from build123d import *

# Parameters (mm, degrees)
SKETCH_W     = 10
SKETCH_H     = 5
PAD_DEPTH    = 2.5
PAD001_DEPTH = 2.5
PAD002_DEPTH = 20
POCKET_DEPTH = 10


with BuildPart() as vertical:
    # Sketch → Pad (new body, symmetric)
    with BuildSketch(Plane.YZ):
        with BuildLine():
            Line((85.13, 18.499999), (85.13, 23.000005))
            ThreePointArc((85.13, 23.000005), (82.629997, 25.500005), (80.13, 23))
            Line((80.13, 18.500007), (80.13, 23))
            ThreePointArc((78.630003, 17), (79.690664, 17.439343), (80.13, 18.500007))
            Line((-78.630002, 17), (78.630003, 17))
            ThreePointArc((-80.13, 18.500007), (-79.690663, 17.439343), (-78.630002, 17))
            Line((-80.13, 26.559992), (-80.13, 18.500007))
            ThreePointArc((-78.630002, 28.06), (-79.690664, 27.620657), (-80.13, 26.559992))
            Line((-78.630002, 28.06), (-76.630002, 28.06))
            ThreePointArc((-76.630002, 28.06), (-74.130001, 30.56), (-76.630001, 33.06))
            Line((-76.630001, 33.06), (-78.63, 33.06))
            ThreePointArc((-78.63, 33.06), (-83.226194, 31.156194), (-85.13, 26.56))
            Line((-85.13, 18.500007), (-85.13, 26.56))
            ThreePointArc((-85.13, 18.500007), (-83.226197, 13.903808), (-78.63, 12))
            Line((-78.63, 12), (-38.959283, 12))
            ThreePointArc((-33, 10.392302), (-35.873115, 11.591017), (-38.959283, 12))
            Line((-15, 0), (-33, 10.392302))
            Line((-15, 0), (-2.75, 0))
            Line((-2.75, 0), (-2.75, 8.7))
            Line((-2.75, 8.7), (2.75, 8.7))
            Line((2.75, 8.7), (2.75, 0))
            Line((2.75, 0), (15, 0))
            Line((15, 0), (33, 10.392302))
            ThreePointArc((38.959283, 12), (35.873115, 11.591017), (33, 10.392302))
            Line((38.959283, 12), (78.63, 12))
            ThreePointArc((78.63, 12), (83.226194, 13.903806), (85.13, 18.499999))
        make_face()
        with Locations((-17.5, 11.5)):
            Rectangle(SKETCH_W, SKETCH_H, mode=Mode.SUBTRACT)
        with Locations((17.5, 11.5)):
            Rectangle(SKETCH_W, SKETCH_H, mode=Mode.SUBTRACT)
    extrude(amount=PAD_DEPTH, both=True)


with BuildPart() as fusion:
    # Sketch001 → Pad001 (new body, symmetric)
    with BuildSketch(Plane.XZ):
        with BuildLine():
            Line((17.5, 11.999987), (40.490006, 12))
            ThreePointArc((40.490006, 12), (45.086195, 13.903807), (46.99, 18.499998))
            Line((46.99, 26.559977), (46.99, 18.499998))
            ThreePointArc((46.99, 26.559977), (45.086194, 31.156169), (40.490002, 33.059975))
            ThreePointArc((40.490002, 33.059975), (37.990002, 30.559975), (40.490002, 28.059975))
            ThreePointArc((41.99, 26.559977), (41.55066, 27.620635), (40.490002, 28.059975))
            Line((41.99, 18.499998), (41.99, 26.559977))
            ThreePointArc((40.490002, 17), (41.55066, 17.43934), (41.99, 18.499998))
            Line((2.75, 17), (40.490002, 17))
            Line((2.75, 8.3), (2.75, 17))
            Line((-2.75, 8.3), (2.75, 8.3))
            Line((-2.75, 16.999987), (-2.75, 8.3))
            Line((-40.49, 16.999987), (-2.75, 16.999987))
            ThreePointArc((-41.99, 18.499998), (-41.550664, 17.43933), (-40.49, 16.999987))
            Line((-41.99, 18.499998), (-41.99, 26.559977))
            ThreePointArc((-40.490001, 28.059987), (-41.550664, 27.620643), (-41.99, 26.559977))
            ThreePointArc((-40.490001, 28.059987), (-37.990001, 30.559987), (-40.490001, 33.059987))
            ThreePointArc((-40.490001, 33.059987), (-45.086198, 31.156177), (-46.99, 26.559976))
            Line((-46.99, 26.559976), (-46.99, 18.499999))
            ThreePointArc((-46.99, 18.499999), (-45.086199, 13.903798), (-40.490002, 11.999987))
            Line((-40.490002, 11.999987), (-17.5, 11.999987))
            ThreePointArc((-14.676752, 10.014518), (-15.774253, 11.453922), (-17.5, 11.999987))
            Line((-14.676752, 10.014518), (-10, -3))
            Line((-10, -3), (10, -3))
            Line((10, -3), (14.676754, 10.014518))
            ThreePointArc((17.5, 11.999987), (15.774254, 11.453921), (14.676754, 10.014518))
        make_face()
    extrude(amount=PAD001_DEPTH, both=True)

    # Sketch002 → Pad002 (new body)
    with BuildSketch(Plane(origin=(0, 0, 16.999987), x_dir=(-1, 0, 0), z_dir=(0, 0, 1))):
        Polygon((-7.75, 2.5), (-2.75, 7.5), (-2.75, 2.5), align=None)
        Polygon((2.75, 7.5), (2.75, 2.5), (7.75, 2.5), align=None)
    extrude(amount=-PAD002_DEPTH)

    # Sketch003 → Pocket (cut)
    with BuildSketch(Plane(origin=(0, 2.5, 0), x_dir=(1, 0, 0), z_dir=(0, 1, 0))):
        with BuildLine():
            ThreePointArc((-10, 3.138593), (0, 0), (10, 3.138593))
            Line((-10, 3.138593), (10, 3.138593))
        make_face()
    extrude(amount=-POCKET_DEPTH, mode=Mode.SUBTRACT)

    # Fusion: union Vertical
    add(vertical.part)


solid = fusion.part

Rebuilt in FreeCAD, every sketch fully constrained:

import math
import FreeCAD as App
import Part
import Sketcher
from FreeCAD import Vector
Q = App.Units.Quantity


def add_polygon(sketch, points):
    """Adds a closed chain of lines whose ends are joined by coincident constraints."""
    first, n = sketch.GeometryCount, len(points)
    for a, b in zip(points, points[1:] + points[:1]):
        sketch.addGeometry(Part.LineSegment(App.Vector(*a, 0), App.Vector(*b, 0)), False)
    for i in range(n):
        sketch.addConstraint(Sketcher.Constraint("Coincident", first + i, 2, first + (i + 1) % n, 1))

doc = App.newDocument("Part")
body = doc.addObject("PartDesign::Body", "Body")

sketch1 = body.newObject("Sketcher::SketchObject", "Sketch")
sketch1.AttachmentSupport = (doc.getObject("YZ_Plane"), [""])
sketch1.MapMode = "FlatFace"
sketch1.addGeometry(Part.LineSegment(Vector(85.1, 18.5, 0), Vector(85.1, 23, 0)), False)
sketch1.addGeometry(Part.ArcOfCircle(Part.Circle(Vector(82.6, 23, 0), Vector(0, 0, 1), 2.5), math.radians(0), math.radians(180)), False)
sketch1.addGeometry(Part.LineSegment(Vector(80.1, 23, 0), Vector(80.1, 18.5, 0)), False)
sketch1.addGeometry(Part.ArcOfCircle(Part.Circle(Vector(78.6, 18.5, 0), Vector(0, 0, 1), 1.5), math.radians(-90), math.radians(0)), False)
sketch1.addGeometry(Part.LineSegment(Vector(78.6, 17, 0), Vector(-78.6, 17, 0)), False)
sketch1.addGeometry(Part.ArcOfCircle(Part.Circle(Vector(-78.6, 18.5, 0), Vector(0, 0, 1), 1.5), math.radians(180), math.radians(270)), False)
sketch1.addGeometry(Part.LineSegment(Vector(-80.1, 18.5, 0), Vector(-80.1, 26.6, 0)), False)
sketch1.addGeometry(Part.ArcOfCircle(Part.Circle(Vector(-78.6, 26.6, 0), Vector(0, 0, 1), 1.5), math.radians(90), math.radians(180)), False)
sketch1.addGeometry(Part.LineSegment(Vector(-78.6, 28.1, 0), Vector(-76.6, 28.1, 0)), False)
sketch1.addGeometry(Part.ArcOfCircle(Part.Circle(Vector(-76.6, 30.6, 0), Vector(0, 0, 1), 2.5), math.radians(-90), math.radians(90)), False)
sketch1.addGeometry(Part.LineSegment(Vector(-76.6, 33.1, 0), Vector(-78.6, 33.1, 0)), False)
sketch1.addGeometry(Part.ArcOfCircle(Part.Circle(Vector(-78.6, 26.6, 0), Vector(0, 0, 1), 6.5), math.radians(90), math.radians(180)), False)
sketch1.addGeometry(Part.LineSegment(Vector(-85.1, 26.6, 0), Vector(-85.1, 18.5, 0)), False)
sketch1.addGeometry(Part.ArcOfCircle(Part.Circle(Vector(-78.6, 18.5, 0), Vector(0, 0, 1), 6.5), math.radians(180), math.radians(270)), False)
sketch1.addGeometry(Part.LineSegment(Vector(-78.6, 12, 0), Vector(-39, 12, 0)), False)
sketch1.addGeometry(Part.ArcOfCircle(Part.Circle(Vector(-39, 0.2, 0), Vector(0, 0, 1), 11.8), math.radians(60), math.radians(90)), False)
sketch1.addGeometry(Part.LineSegment(Vector(-33, 10.4, 0), Vector(-15, 0, 0)), False)
sketch1.addGeometry(Part.LineSegment(Vector(-15, 0, 0), Vector(-2.8, 0, 0)), False)
sketch1.addGeometry(Part.LineSegment(Vector(-2.8, 0, 0), Vector(-2.8, 8.7, 0)), False)
sketch1.addGeometry(Part.LineSegment(Vector(-2.8, 8.7, 0), Vector(2.8, 8.7, 0)), False)
sketch1.addGeometry(Part.LineSegment(Vector(2.8, 8.7, 0), Vector(2.8, 0, 0)), False)
sketch1.addGeometry(Part.LineSegment(Vector(2.8, 0, 0), Vector(15, 0, 0)), False)
sketch1.addGeometry(Part.LineSegment(Vector(15, 0, 0), Vector(33, 10.4, 0)), False)
sketch1.addGeometry(Part.ArcOfCircle(Part.Circle(Vector(39, 0.2, 0), Vector(0, 0, 1), 11.8), math.radians(90), math.radians(120)), False)
sketch1.addGeometry(Part.LineSegment(Vector(39, 12, 0), Vector(78.6, 12, 0)), False)
sketch1.addGeometry(Part.ArcOfCircle(Part.Circle(Vector(78.6, 18.5, 0), Vector(0, 0, 1), 6.5), math.radians(-90), math.radians(0)), False)
add_polygon(sketch1, [(-12.5, 9), (-22.5, 9), (-22.5, 14), (-12.5, 14)])
add_polygon(sketch1, [(22.5, 9), (12.5, 9), (12.5, 14), (22.5, 14)])
sketch1.addConstraint([
    Sketcher.Constraint("Tangent", 0, 2, 1, 1),
    Sketcher.Constraint("Coincident", 1, 2, 2, 1),
    Sketcher.Constraint("Coincident", 2, 2, 3, 2),
    Sketcher.Constraint("Tangent", 3, 1, 4, 1),
    Sketcher.Constraint("Tangent", 4, 2, 5, 2),
    Sketcher.Constraint("Coincident", 5, 1, 6, 1),
    Sketcher.Constraint("Coincident", 6, 2, 7, 2),
    Sketcher.Constraint("Tangent", 7, 1, 8, 1),
    Sketcher.Constraint("Tangent", 8, 2, 9, 1),
    Sketcher.Constraint("Tangent", 9, 2, 10, 1),
    Sketcher.Constraint("Tangent", 10, 2, 11, 1),
    Sketcher.Constraint("Tangent", 11, 2, 12, 1),
    Sketcher.Constraint("Tangent", 12, 2, 13, 1),
    Sketcher.Constraint("Tangent", 13, 2, 14, 1),
    Sketcher.Constraint("Tangent", 14, 2, 15, 2),
    Sketcher.Constraint("Coincident", 15, 1, 16, 1),
    Sketcher.Constraint("Coincident", 16, 2, 17, 1),
    Sketcher.Constraint("Coincident", 17, 2, 18, 1),
    Sketcher.Constraint("Coincident", 18, 2, 19, 1),
    Sketcher.Constraint("Coincident", 19, 2, 20, 1),
    Sketcher.Constraint("Coincident", 20, 2, 21, 1),
    Sketcher.Constraint("Coincident", 21, 2, 22, 1),
    Sketcher.Constraint("Coincident", 22, 2, 23, 2),
    Sketcher.Constraint("Tangent", 23, 1, 24, 1),
    Sketcher.Constraint("Tangent", 24, 2, 25, 1),
    Sketcher.Constraint("Tangent", 25, 2, 0, 1),
    Sketcher.Constraint("Vertical", 0),
    Sketcher.Constraint("Vertical", 2),
    Sketcher.Constraint("Horizontal", 4),
    Sketcher.Constraint("Vertical", 6),
    Sketcher.Constraint("Horizontal", 8),
    Sketcher.Constraint("Horizontal", 10),
    Sketcher.Constraint("Vertical", 12),
    Sketcher.Constraint("Horizontal", 14),
    Sketcher.Constraint("Horizontal", 17),
    Sketcher.Constraint("Vertical", 18),
    Sketcher.Constraint("Horizontal", 19),
    Sketcher.Constraint("Vertical", 20),
    Sketcher.Constraint("Horizontal", 21),
    Sketcher.Constraint("Horizontal", 24),
    Sketcher.Constraint("Horizontal", 26),
    Sketcher.Constraint("Vertical", 27),
    Sketcher.Constraint("Horizontal", 28),
    Sketcher.Constraint("Vertical", 29),
    Sketcher.Constraint("Horizontal", 30),
    Sketcher.Constraint("Vertical", 31),
    Sketcher.Constraint("Horizontal", 32),
    Sketcher.Constraint("Vertical", 33),
    Sketcher.Constraint("Coincident", 11, 3, 7, 3),
    Sketcher.Constraint("Coincident", 13, 3, 5, 3),
    Sketcher.Constraint("Coincident", 25, 3, 3, 3),
    Sketcher.Constraint("Equal", 3, 5),
    Sketcher.Constraint("Equal", 5, 7),
    Sketcher.Constraint("Equal", 1, 9),
    Sketcher.Constraint("Equal", 15, 23),
    Sketcher.Constraint("Symmetric", 17, 2, 20, 2, -1, 1),
    Sketcher.Constraint("Symmetric", 2, 2, 5, 1, -2),
    Sketcher.Constraint("Symmetric", 16, 2, 21, 2, -2),
    Sketcher.Constraint("Symmetric", 15, 1, 22, 2, -2),
    Sketcher.Constraint("Symmetric", 29, 2, 30, 2, -2),
    Sketcher.Constraint("Symmetric", 27, 2, 32, 2, -2),
    Sketcher.Constraint("Horizontal", 5, 1, 12, 2),
    Sketcher.Constraint("Radius", 1, 2.5),
    Sketcher.Constraint("Radius", 3, 1.499999),
    Sketcher.Constraint("DistanceX", 8, 1, 8, 2, 2.0),
    Sketcher.Constraint("DistanceX", 26, 2, 26, 1, 10.0),
    Sketcher.Constraint("DistanceY", 27, 1, 27, 2, 5.0),
    Sketcher.Constraint("Angle", 16, Q("-29.999993 deg")),
    Sketcher.Constraint("DistanceX", 19, 1, 19, 2, 5.5),
    Sketcher.Constraint("DistanceY", 18, 1, 18, 2, 8.7),
    Sketcher.Constraint("DistanceY", -1, 1, 1, 2, 23.0),
    Sketcher.Constraint("DistanceY", -1, 1, 3, 1, 17.0),
    Sketcher.Constraint("DistanceX", 15, 1, -1, 1, 33.0),
    Sketcher.Constraint("DistanceX", 16, 2, -1, 1, 15.0),
    Sketcher.Constraint("DistanceY", -1, 1, 26, 2, 9.0),
    Sketcher.Constraint("DistanceX", 26, 2, -1, 1, 22.5),
    Sketcher.Constraint("DistanceY", 2, 2, 1, 3, 4.499998),
    Sketcher.Constraint("DistanceX", -1, 1, 1, 3, 82.63),
    Sketcher.Constraint("DistanceY", -1, 1, 7, 3, 26.560001),
    Sketcher.Constraint("Radius", 15, 11.848543),
    Sketcher.Constraint("DistanceY", 6, 1, 6, 2, 8.059985),
])
pad1 = body.newObject("PartDesign::Pad", "Pad")
pad1.Profile = sketch1
pad1.Length = 5
pad1.Midplane = True
body2 = doc.addObject("PartDesign::Body", "Body001")
body2.AllowCompound = True

sketch2 = body2.newObject("Sketcher::SketchObject", "Sketch001")
sketch2.AttachmentSupport = (doc.getObject("XZ_Plane001"), [""])
sketch2.MapMode = "FlatFace"
sketch2.addGeometry([
    Part.LineSegment(Vector(17.5, 11.999987, 0), Vector(40.490006, 12, 0)),
    Part.ArcOfCircle(Part.Circle(Vector(40.49, 18.5, 0), Vector(0, 0, 1), 6.5), math.radians(-89.999945), math.radians(-0.00002)),
    Part.LineSegment(Vector(46.99, 18.499998, 0), Vector(46.99, 26.559977, 0)),
    Part.ArcOfCircle(Part.Circle(Vector(40.49, 26.559975, 0), Vector(0, 0, 1), 6.5), math.radians(0.00002), math.radians(89.99998)),
    Part.ArcOfCircle(Part.Circle(Vector(40.490002, 30.559975, 0), Vector(0, 0, 1), 2.5), math.radians(90), math.radians(270)),
    Part.ArcOfCircle(Part.Circle(Vector(40.489999, 26.559974, 0), Vector(0, 0, 1), 1.500001), math.radians(0.000099), math.radians(89.999901)),
    Part.LineSegment(Vector(41.99, 26.559977, 0), Vector(41.99, 18.499998, 0)),
    Part.ArcOfCircle(Part.Circle(Vector(40.489999, 18.500001, 0), Vector(0, 0, 1), 1.500001), math.radians(-89.999901), math.radians(-0.000099)),
    Part.LineSegment(Vector(40.490002, 17, 0), Vector(2.75, 17, 0)),
    Part.LineSegment(Vector(2.75, 17, 0), Vector(2.75, 8.3, 0)),
    Part.LineSegment(Vector(2.75, 8.3, 0), Vector(-2.75, 8.3, 0)),
    Part.LineSegment(Vector(-2.75, 8.3, 0), Vector(-2.75, 16.999987, 0)),
    Part.LineSegment(Vector(-2.75, 16.999987, 0), Vector(-40.49, 16.999987, 0)),
    Part.ArcOfCircle(Part.Circle(Vector(-40.490001, 18.499986, 0), Vector(0, 0, 1), 1.499999), math.radians(179.999537), math.radians(270.000043)),
    Part.LineSegment(Vector(-41.99, 18.499998, 0), Vector(-41.99, 26.559977, 0)),
    Part.ArcOfCircle(Part.Circle(Vector(-40.489999, 26.559986, 0), Vector(0, 0, 1), 1.500001), math.radians(90.000061), math.radians(180.00036)),
    Part.ArcOfCircle(Part.Circle(Vector(-40.490001, 30.559987, 0), Vector(0, 0, 1), 2.5), math.radians(-90), math.radians(90)),
    Part.ArcOfCircle(Part.Circle(Vector(-40.49, 26.559987, 0), Vector(0, 0, 1), 6.5), math.radians(90.000011), math.radians(180.000095)),
    Part.LineSegment(Vector(-46.99, 26.559976, 0), Vector(-46.99, 18.499999, 0)),
    Part.ArcOfCircle(Part.Circle(Vector(-40.49, 18.499987, 0), Vector(0, 0, 1), 6.5), math.radians(179.999897), math.radians(269.99998)),
    Part.LineSegment(Vector(-40.490002, 11.999987, 0), Vector(-17.5, 11.999987, 0)),
    Part.ArcOfCircle(Part.Circle(Vector(-17.500001, 8.999986, 0), Vector(0, 0, 1), 3.000001), math.radians(19.765864), math.radians(89.99999)),
    Part.LineSegment(Vector(-14.676752, 10.014518, 0), Vector(-10, -3, 0)),
    Part.LineSegment(Vector(-10, -3, 0), Vector(10, -3, 0)),
    Part.LineSegment(Vector(10, -3, 0), Vector(14.676754, 10.014518, 0)),
    Part.ArcOfCircle(Part.Circle(Vector(17.500003, 8.999985, 0), Vector(0, 0, 1), 3.000002), math.radians(90.000063), math.radians(160.234121)),
], False)
sketch2.addConstraint([
    Sketcher.Constraint("Coincident", 0, 2, 1, 1),
    Sketcher.Constraint("Coincident", 1, 2, 2, 1),
    Sketcher.Constraint("Coincident", 2, 2, 3, 1),
    Sketcher.Constraint("Coincident", 3, 2, 4, 1),
    Sketcher.Constraint("Coincident", 4, 2, 5, 2),
    Sketcher.Constraint("Coincident", 5, 1, 6, 1),
    Sketcher.Constraint("Coincident", 6, 2, 7, 2),
    Sketcher.Constraint("Coincident", 7, 1, 8, 1),
    Sketcher.Constraint("Coincident", 8, 2, 9, 1),
    Sketcher.Constraint("Coincident", 9, 2, 10, 1),
    Sketcher.Constraint("Coincident", 10, 2, 11, 1),
    Sketcher.Constraint("Coincident", 11, 2, 12, 1),
    Sketcher.Constraint("Coincident", 12, 2, 13, 2),
    Sketcher.Constraint("Coincident", 13, 1, 14, 1),
    Sketcher.Constraint("Coincident", 14, 2, 15, 2),
    Sketcher.Constraint("Coincident", 15, 1, 16, 1),
    Sketcher.Constraint("Coincident", 16, 2, 17, 1),
    Sketcher.Constraint("Coincident", 17, 2, 18, 1),
    Sketcher.Constraint("Coincident", 18, 2, 19, 1),
    Sketcher.Constraint("Coincident", 19, 2, 20, 1),
    Sketcher.Constraint("Coincident", 20, 2, 21, 2),
    Sketcher.Constraint("Coincident", 21, 1, 22, 1),
    Sketcher.Constraint("Coincident", 22, 2, 23, 1),
    Sketcher.Constraint("Coincident", 23, 2, 24, 1),
    Sketcher.Constraint("Coincident", 24, 2, 25, 2),
    Sketcher.Constraint("Coincident", 25, 1, 0, 1),
    Sketcher.Constraint("Vertical", 2),
    Sketcher.Constraint("Vertical", 6),
    Sketcher.Constraint("Horizontal", 8),
    Sketcher.Constraint("Vertical", 9),
    Sketcher.Constraint("Horizontal", 10),
    Sketcher.Constraint("Vertical", 11),
    Sketcher.Constraint("Horizontal", 12),
    Sketcher.Constraint("Vertical", 14),
    Sketcher.Constraint("Vertical", 18),
    Sketcher.Constraint("Horizontal", 20),
    Sketcher.Constraint("Horizontal", 23),
    Sketcher.Constraint("Coincident", 5, 3, 3, 3),
    Sketcher.Constraint("Coincident", 7, 3, 1, 3),
    Sketcher.Constraint("Coincident", 17, 3, 15, 3),
    Sketcher.Constraint("Coincident", 19, 3, 13, 3),
    Sketcher.Constraint("Radius", 21, 3.000001),
    Sketcher.Constraint("Radius", 1, 6.5),
    Sketcher.Constraint("Radius", 3, 6.5),
    Sketcher.Constraint("Radius", 4, 2.5),
    Sketcher.Constraint("Radius", 13, 1.499999),
    Sketcher.Constraint("Radius", 15, 1.500001),
    Sketcher.Constraint("Radius", 16, 2.5),
    Sketcher.Constraint("DistanceX", 23, 1, 23, 2, 20.0),
    Sketcher.Constraint("DistanceX", 10, 2, 10, 1, 5.5),
    Sketcher.Constraint("DistanceY", 9, 2, 9, 1, 8.7),
    Sketcher.Constraint("DistanceY", -1, 1, 0, 2, 12.0),
    Sketcher.Constraint("DistanceX", 22, 2, -1, 1, 10.0),
    Sketcher.Constraint("DistanceY", 22, 2, -1, 1, 3.0),
    Sketcher.Constraint("DistanceY", 2, 2, 4, 3, 3.999998),
    Sketcher.Constraint("DistanceY", 5, 1, 4, 3, 3.999998),
    Sketcher.Constraint("DistanceX", 8, 2, 8, 1, 37.740002),
    Sketcher.Constraint("DistanceX", 12, 2, 12, 1, 37.74),
    Sketcher.Constraint("DistanceX", 20, 1, 20, 2, 22.990002),
    Sketcher.Constraint("DistanceX", 21, 3, -1, 1, 17.500001),
    Sketcher.Constraint("DistanceY", -1, 1, 1, 2, 18.499998),
    Sketcher.Constraint("DistanceY", -1, 1, 6, 2, 18.499998),
    Sketcher.Constraint("DistanceY", -1, 1, 13, 1, 18.499998),
    Sketcher.Constraint("DistanceY", -1, 1, 18, 2, 18.499999),
    Sketcher.Constraint("DistanceX", 20, 2, -1, 1, 17.5),
    Sketcher.Constraint("DistanceX", -1, 1, 25, 1, 17.5),
    Sketcher.Constraint("DistanceX", 4, 3, 2, 2, 6.499998),
    Sketcher.Constraint("DistanceX", 3, 2, 2, 2, 6.499998),
    Sketcher.Constraint("DistanceX", 4, 2, 2, 2, 6.499998),
    Sketcher.Constraint("DistanceX", 7, 1, 6, 2, 1.499998),
    Sketcher.Constraint("DistanceX", 13, 1, 12, 2, 1.5),
    Sketcher.Constraint("DistanceX", 14, 2, 16, 3, 1.499999),
    Sketcher.Constraint("DistanceX", 14, 2, 15, 1, 1.499999),
    Sketcher.Constraint("DistanceX", 14, 2, 16, 2, 1.499999),
    Sketcher.Constraint("DistanceX", 18, 2, 19, 2, 6.499998),
    Sketcher.Constraint("DistanceY", 13, 3, 15, 3, 8.060001),
    Sketcher.Constraint("DistanceX", 25, 3, 4, 3, 22.989999),
    Sketcher.Constraint("Radius", 25, 3.000002),
    Sketcher.Constraint("DistanceY", 2, 1, 2, 2, 8.059979),
    Sketcher.Constraint("DistanceY", 14, 1, 14, 2, 8.059979),
    Sketcher.Constraint("DistanceY", 11, 1, 11, 2, 8.699987),
    Sketcher.Constraint("DistanceY", 18, 2, 18, 1, 8.059977),
    Sketcher.Constraint("DistanceY", -1, 1, 24, 2, 10.014518),
    Sketcher.Constraint("DistanceY", 25, 3, 5, 3, 17.55999),
    Sketcher.Constraint("DistanceX", 21, 3, 21, 1, 2.823249),
    Sketcher.Constraint("Distance", 0, 22.990006),
])
pad2 = body2.newObject("PartDesign::Pad", "Pad001")
pad2.Profile = sketch2
pad2.Length = 5
pad2.Midplane = True

sketch3 = body2.newObject("Sketcher::SketchObject", "Sketch002")
sketch3.AttachmentSupport = (doc.getObject("XY_Plane001"), [""])
sketch3.MapMode = "FlatFace"
sketch3.AttachmentOffset = App.Placement(Vector(0, 0, 16.999987), App.Rotation())
add_polygon(sketch3, [(3, -8), (8, -2), (3, -2)])
add_polygon(sketch3, [(-3, -8), (-3, -2), (-8, -2)])
sketch3.addConstraint([
    Sketcher.Constraint("Horizontal", 1),
    Sketcher.Constraint("Vertical", 2),
    Sketcher.Constraint("Vertical", 3),
    Sketcher.Constraint("Horizontal", 4),
    Sketcher.Constraint("Symmetric", 1, 2, 3, 2, -2),
    Sketcher.Constraint("Perpendicular", 0, 5),
    Sketcher.Constraint("Horizontal", 2, 2, 5, 2),
    Sketcher.Constraint("Equal", 1, 4),
    Sketcher.Constraint("DistanceX", 1, 2, 1, 1, 5.0),
    Sketcher.Constraint("DistanceY", 0, 2, -1, 1, 2.5),
    Sketcher.Constraint("DistanceX", 3, 2, 1, 2, 5.5),
])
pad3 = body2.newObject("PartDesign::Pad", "Pad002")
pad3.Profile = sketch3
pad3.Length = 20
pad3.Reversed = True

sketch4 = body2.newObject("Sketcher::SketchObject", "Sketch003")
sketch4.AttachmentSupport = (doc.getObject("XZ_Plane001"), [""])
sketch4.MapMode = "FlatFace"
sketch4.AttachmentOffset = App.Placement(Vector(0, 0, -2.5), App.Rotation())
sketch4.addGeometry([
    Part.ArcOfCircle(Part.Circle(Vector(0, -18, 0), Vector(0, 0, 1), 18), math.radians(55), math.radians(125)),
    Part.LineSegment(Vector(10, -3, 0), Vector(-10, -3, 0)),
], False)
sketch4.addConstraint([
    Sketcher.Constraint("Coincident", 0, 1, 1, 1),
    Sketcher.Constraint("Coincident", 1, 2, 0, 2),
    Sketcher.Constraint("Horizontal", 1),
    Sketcher.Constraint("PointOnObject", 0, 3, -2),
    Sketcher.Constraint("Radius", 0, 17.500002),
    Sketcher.Constraint("DistanceX", 1, 2, 1, 1, 20.0),
    Sketcher.Constraint("DistanceY", 0, 3, -1, 1, 17.500002),
])
pocket1 = body2.newObject("PartDesign::Pocket", "Pocket")
pocket1.Profile = sketch4
pocket1.Length = 10
pocket1.Reversed = True
doc.recompute()

boolean = body2.newObject("PartDesign::Boolean", "Boolean")
boolean.Type = "Fuse"
boolean.addObjects([body])

doc.recompute()
